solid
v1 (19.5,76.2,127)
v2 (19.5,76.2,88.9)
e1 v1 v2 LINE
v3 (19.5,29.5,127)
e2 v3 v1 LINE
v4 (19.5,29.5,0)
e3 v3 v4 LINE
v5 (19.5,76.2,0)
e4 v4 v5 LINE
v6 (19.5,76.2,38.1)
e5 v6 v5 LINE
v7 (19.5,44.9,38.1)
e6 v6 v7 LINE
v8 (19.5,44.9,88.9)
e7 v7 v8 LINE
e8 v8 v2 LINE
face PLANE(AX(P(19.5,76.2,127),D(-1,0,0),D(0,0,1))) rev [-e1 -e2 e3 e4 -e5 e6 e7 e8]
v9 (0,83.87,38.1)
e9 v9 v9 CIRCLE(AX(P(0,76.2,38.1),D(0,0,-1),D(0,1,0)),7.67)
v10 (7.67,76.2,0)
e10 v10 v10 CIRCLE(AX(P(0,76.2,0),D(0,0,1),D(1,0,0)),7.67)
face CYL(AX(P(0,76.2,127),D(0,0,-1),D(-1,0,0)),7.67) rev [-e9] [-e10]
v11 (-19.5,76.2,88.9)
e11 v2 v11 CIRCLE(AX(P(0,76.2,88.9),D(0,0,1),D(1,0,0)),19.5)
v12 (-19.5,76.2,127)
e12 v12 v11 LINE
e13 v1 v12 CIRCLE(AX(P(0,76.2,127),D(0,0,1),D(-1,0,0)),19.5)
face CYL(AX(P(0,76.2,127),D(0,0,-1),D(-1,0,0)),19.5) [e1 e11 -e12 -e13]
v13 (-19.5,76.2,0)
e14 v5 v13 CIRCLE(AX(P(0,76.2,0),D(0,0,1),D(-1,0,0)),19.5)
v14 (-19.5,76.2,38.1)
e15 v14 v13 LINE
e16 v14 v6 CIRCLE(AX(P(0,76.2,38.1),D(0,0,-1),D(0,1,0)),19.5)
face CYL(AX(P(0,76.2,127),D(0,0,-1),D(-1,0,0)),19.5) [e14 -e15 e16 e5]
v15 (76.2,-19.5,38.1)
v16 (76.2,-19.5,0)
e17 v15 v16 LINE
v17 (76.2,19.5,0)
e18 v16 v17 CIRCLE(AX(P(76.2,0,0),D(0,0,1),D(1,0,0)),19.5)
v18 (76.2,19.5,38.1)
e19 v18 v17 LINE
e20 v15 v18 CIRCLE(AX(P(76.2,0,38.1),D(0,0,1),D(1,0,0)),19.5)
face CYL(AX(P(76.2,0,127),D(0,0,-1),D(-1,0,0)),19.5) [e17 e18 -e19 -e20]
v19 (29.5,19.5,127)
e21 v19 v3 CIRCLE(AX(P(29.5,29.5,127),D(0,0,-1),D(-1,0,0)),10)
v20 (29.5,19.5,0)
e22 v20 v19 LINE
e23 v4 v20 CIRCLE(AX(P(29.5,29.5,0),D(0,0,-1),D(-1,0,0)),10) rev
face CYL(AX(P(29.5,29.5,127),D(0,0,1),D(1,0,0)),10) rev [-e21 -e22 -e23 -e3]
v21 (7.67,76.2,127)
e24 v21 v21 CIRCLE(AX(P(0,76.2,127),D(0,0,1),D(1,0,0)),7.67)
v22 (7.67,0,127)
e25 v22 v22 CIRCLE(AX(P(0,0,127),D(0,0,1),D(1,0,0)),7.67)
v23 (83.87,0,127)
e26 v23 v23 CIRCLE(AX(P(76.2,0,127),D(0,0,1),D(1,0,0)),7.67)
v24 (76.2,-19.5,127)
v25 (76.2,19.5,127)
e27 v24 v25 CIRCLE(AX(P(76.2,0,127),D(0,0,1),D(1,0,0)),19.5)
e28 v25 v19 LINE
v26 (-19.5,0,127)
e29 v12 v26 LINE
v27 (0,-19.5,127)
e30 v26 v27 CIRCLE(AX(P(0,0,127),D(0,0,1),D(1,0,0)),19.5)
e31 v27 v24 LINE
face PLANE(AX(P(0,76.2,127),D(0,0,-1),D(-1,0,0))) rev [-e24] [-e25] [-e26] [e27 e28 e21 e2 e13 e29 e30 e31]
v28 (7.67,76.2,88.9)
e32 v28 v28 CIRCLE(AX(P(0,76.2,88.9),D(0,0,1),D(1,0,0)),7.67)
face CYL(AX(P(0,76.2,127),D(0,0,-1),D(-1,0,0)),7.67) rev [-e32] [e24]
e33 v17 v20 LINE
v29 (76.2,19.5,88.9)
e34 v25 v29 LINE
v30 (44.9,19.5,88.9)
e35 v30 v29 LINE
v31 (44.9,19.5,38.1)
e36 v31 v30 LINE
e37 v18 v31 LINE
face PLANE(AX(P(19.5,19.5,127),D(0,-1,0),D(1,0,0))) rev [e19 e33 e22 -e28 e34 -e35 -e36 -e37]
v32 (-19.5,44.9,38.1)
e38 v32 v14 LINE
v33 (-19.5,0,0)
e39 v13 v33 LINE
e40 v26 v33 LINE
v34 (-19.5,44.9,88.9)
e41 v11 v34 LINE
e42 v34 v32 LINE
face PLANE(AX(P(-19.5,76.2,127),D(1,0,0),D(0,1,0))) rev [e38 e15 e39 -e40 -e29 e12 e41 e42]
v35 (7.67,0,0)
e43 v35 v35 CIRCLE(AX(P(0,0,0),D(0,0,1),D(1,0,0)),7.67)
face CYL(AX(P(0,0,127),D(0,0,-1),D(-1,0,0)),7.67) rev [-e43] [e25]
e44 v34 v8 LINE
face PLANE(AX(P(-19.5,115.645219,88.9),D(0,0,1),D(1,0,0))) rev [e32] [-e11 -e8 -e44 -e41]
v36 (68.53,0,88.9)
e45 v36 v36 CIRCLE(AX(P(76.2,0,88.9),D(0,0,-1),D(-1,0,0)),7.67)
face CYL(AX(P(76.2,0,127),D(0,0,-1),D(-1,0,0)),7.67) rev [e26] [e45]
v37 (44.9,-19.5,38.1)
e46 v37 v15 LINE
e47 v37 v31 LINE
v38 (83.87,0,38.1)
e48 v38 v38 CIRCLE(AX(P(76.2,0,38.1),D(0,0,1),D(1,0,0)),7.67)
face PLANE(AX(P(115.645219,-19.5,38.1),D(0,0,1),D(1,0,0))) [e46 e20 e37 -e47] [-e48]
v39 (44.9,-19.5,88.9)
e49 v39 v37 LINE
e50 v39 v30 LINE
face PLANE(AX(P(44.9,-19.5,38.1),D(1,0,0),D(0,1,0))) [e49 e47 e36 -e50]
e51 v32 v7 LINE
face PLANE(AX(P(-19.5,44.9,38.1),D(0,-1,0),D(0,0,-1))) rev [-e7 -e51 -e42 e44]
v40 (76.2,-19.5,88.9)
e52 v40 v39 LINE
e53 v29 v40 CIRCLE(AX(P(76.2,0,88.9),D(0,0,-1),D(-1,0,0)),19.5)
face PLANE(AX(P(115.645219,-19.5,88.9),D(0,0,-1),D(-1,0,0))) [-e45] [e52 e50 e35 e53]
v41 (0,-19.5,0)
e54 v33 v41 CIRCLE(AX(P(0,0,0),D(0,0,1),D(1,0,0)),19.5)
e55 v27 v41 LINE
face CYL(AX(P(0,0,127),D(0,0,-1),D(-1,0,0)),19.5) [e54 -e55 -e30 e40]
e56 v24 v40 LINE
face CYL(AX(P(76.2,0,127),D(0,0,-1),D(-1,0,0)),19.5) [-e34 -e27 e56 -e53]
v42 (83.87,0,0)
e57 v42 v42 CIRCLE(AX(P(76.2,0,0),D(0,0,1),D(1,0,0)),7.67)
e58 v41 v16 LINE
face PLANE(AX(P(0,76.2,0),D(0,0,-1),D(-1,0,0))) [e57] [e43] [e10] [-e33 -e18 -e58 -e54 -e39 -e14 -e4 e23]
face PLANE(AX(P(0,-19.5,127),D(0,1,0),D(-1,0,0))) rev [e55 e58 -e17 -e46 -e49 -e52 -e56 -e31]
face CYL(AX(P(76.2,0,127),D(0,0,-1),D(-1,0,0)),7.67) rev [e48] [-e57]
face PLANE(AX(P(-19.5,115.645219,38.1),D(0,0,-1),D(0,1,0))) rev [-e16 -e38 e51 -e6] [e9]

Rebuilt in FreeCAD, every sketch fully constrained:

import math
import FreeCAD as App
import Part
import Sketcher


def edges_at(feature, points):
    """Names of the edges that pass closest to the given points."""
    edges = feature.Shape.Edges
    near = lambda p: min(range(len(edges)), key=lambda i: edges[i].distToShape(Part.Vertex(*p))[0])
    return sorted({f"Edge{near(p) + 1}" for p in points})


def add_polygon(sketch, points):
    """Adds a closed chain of lines whose ends are joined by coincident constraints."""
    first, n = sketch.GeometryCount, len(points)
    for a, b in zip(points, points[1:] + points[:1]):
        sketch.addGeometry(Part.LineSegment(App.Vector(*a, 0), App.Vector(*b, 0)), False)
    for i in range(n):
        sketch.addConstraint(Sketcher.Constraint("Coincident", first + i, 2, first + (i + 1) % n, 1))

doc = App.newDocument("Part")
params = doc.addObject("Spreadsheet::Sheet", "Params")
for row, (alias, value) in enumerate([
    ("sketch1_radius", "19.5 mm"),
    ("sketch1_diameter", "15.34 mm"),
    ("sketch1_width", "76.2 mm"),
    ("pad1_length", "127 mm"),
    ("fillet_radius", "10 mm"),
    ("sketch2_height", "50.8 mm"),
    ("pocket1_length", "373.192565 mm"),
], start=1):
    params.set(f"A{row}", alias)
    params.set(f"B{row}", "=" + value)
    params.setAlias(f"B{row}", alias)

body = doc.addObject("PartDesign::Body", "Body")

# Sketch on XY plane
sketch1 = body.newObject("Sketcher::SketchObject", "Sketch")
sketch1.AttachmentSupport = (doc.getObject("XY_Plane"), [""])
sketch1.MapMode = "FlatFace"
sketch1.addGeometry([
    Part.LineSegment(App.Vector(-20, 76, 0), App.Vector(-20, 0, 0)),  # 0
    Part.ArcOfCircle(Part.Circle(App.Vector(0, 0, 0), App.Vector(0, 0, 1), 20), math.radians(180), math.radians(270)),  # 1
    Part.LineSegment(App.Vector(0, -20, 0), App.Vector(76, -20, 0)),  # 2
    Part.ArcOfCircle(Part.Circle(App.Vector(76, 0, 0), App.Vector(0, 0, 1), 20), math.radians(-90), math.radians(90)),  # 3
    Part.LineSegment(App.Vector(76, 20, 0), App.Vector(20, 20, 0)),  # 4
    Part.LineSegment(App.Vector(20, 20, 0), App.Vector(20, 76, 0)),  # 5
    Part.ArcOfCircle(Part.Circle(App.Vector(0, 76, 0), App.Vector(0, 0, 1), 20), math.radians(0), math.radians(180)),  # 6
    Part.Circle(App.Vector(0, 0, 0), App.Vector(0, 0, 1), 8),  # 7
    Part.Circle(App.Vector(76, 0, 0), App.Vector(0, 0, 1), 8),  # 8
    Part.Circle(App.Vector(0, 76, 0), App.Vector(0, 0, 1), 8),  # 9
], False)
sketch1.addConstraint([
    Sketcher.Constraint("Tangent", 0, 2, 1, 1),
    Sketcher.Constraint("Tangent", 1, 2, 2, 1),
    Sketcher.Constraint("Tangent", 2, 2, 3, 1),
    Sketcher.Constraint("Tangent", 3, 2, 4, 1),
    Sketcher.Constraint("Coincident", 4, 2, 5, 1),
    Sketcher.Constraint("Tangent", 5, 2, 6, 1),
    Sketcher.Constraint("Tangent", 6, 2, 0, 1),
    Sketcher.Constraint("Vertical", 0),
    Sketcher.Constraint("Horizontal", 2),
    Sketcher.Constraint("Horizontal", 4),
    Sketcher.Constraint("Vertical", 5),
    Sketcher.Constraint("Coincident", 1, 3, -1, 1),
    Sketcher.Constraint("Coincident", 7, 3, -1, 1),
    Sketcher.Constraint("Coincident", 8, 3, 3, 3),
    Sketcher.Constraint("Coincident", 9, 3, 6, 3),
    Sketcher.Constraint("Equal", 1, 3),
    Sketcher.Constraint("Equal", 3, 6),
    Sketcher.Constraint("Equal", 7, 8),
    Sketcher.Constraint("Equal", 8, 9),
    Sketcher.Constraint("Equal", 2, 0),
    Sketcher.Constraint("Radius", 1, 19.5),
    Sketcher.Constraint("Diameter", 7, 15.34),
    Sketcher.Constraint("DistanceX", 2, 1, 2, 2, 76.2),
])
sketch1.setExpression("Constraints[20]", "Params.sketch1_radius")
sketch1.setExpression("Constraints[21]", "Params.sketch1_diameter")
sketch1.setExpression("Constraints[22]", "Params.sketch1_width")
pad1 = body.newObject("PartDesign::Pad", "Pad")
pad1.Profile = sketch1
pad1.setExpression("Length", "Params.pad1_length")
doc.recompute()

fillet = body.newObject("PartDesign::Fillet", "Fillet")
fillet.Base = (pad1, edges_at(pad1, [(19.5, 19.5, 63.5)]))
fillet.setExpression("Radius", "Params.fillet_radius")

# Sketch on YZ plane
sketch2 = body.newObject("Sketcher::SketchObject", "Sketch001")
sketch2.AttachmentSupport = (doc.getObject("YZ_Plane"), [""])
sketch2.MapMode = "FlatFace"
add_polygon(sketch2, [(116, 89), (45, 89), (45, 38), (116, 38)])  # lines 0-3
sketch2.addConstraint([
    Sketcher.Constraint("Horizontal", 0),
    Sketcher.Constraint("Vertical", 1),
    Sketcher.Constraint("Horizontal", 2),
    Sketcher.Constraint("Vertical", 3),
    Sketcher.Constraint("DistanceY", 1, 2, 1, 1, 50.8),
    Sketcher.Constraint("DistanceX", -1, 1, 0, 2, 44.9),
    Sketcher.Constraint("DistanceY", -1, 1, 0, 2, 88.9),
    Sketcher.Constraint("DistanceX", 0, 2, 0, 1, 70.745219),
])
sketch2.setExpression("Constraints[8]", "Params.sketch2_height")
pocket1 = body.newObject("PartDesign::Pocket", "Pocket")
pocket1.Profile = sketch2
pocket1.setExpression("Length", "Params.pocket1_length")
pocket1.Midplane = True
doc.recompute()

datumplane = body.newObject("PartDesign::Plane", "DatumPlane")
datumplane.Placement = App.Placement(App.Vector(0, 0, 0), App.Rotation(App.Vector(0.707106781, 0.707106781, 0), App.Vector(0, 0, -1), App.Vector(-0.707106781, 0.707106781, 0), "ZXY"))
mirrored = body.newObject("PartDesign::Mirrored", "Mirrored")
mirrored.Originals = [pocket1]
mirrored.MirrorPlane = (datumplane, [""])
body.Tip = mirrored

doc.recompute()
